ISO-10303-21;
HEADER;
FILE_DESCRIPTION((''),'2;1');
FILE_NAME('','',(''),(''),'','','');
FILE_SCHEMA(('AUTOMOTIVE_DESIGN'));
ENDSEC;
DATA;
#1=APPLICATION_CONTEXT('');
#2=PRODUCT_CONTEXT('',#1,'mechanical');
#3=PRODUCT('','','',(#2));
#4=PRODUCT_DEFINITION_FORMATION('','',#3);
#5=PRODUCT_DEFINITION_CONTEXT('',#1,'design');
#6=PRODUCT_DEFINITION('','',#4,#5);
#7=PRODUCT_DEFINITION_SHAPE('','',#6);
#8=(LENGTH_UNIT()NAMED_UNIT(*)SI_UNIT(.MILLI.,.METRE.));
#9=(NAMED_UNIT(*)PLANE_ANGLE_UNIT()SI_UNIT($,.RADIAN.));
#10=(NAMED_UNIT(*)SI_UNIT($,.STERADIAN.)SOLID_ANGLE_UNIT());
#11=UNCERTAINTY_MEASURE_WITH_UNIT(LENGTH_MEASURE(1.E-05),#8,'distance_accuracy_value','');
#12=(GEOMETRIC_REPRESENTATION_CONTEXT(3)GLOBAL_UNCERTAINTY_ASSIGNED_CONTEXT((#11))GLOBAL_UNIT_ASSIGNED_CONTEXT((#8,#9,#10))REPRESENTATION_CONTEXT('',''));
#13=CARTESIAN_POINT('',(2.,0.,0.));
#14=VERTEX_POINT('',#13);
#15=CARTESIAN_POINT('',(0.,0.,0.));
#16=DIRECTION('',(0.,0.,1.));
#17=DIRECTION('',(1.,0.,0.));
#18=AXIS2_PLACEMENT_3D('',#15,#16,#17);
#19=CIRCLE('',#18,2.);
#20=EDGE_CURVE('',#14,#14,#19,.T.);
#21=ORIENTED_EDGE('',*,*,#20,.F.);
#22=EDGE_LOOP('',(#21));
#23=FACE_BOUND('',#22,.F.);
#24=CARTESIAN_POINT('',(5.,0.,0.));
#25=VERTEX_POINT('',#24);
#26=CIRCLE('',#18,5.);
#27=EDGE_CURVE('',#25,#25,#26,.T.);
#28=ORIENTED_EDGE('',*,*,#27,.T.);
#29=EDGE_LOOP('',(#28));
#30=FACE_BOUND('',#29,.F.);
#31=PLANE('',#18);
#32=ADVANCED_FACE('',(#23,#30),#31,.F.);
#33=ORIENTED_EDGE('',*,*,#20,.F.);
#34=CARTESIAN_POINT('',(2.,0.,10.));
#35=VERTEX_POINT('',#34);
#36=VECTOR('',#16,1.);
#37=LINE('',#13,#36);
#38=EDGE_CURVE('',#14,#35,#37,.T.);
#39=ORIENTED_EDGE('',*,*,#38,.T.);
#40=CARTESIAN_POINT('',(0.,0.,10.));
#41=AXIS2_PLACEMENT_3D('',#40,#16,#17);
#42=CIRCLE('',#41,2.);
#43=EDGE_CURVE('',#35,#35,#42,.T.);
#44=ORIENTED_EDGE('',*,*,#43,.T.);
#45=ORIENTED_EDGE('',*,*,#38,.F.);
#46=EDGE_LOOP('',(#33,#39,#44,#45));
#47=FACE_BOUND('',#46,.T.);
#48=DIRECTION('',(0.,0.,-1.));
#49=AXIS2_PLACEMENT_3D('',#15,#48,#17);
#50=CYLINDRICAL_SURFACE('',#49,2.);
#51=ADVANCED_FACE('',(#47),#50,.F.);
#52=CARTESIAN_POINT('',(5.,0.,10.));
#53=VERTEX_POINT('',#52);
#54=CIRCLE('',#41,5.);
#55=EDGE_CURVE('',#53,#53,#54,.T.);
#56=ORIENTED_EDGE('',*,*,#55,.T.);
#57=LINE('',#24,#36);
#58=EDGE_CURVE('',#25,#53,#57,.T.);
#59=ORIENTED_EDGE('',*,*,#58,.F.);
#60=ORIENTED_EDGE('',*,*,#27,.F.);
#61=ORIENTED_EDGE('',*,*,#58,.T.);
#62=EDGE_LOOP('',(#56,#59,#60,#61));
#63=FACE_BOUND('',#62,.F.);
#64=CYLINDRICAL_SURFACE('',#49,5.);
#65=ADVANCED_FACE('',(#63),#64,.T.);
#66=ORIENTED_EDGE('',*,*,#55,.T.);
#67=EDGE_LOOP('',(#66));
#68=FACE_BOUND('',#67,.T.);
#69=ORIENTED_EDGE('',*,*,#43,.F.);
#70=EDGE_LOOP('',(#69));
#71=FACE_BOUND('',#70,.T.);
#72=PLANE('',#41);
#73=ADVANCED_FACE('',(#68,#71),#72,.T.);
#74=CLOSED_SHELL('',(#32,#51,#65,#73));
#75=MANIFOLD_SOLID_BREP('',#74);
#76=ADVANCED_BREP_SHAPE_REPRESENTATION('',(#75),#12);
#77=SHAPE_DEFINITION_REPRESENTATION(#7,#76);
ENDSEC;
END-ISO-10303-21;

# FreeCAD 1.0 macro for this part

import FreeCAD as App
import Part
import Sketcher
from FreeCAD import Vector
Q = App.Units.Quantity

doc = App.newDocument("Part")
body = doc.addObject("PartDesign::Body", "Body")

sketch1 = doc.addObject("Sketcher::SketchObject", "Sketch")
body.addObject(sketch1)
sketch1.AttachmentSupport = (doc.XY_Plane, [""])
sketch1.MapMode = "FlatFace"
sketch1.addGeometry([
    Part.Circle(Vector(0, 0, 0), Vector(0, 0, 1), 5),
    Part.Circle(Vector(0, 0, 0), Vector(0, 0, 1), 2),
], False)
sketch1.addConstraint([
    Sketcher.Constraint("Coincident", 0, 3, -1, 1),
    Sketcher.Constraint("Coincident", 1, 3, -1, 1),
    Sketcher.Constraint("Diameter", 0, Q("10 mm")),
    Sketcher.Constraint("Diameter", 1, Q("4 mm")),
])
pad1 = doc.addObject("PartDesign::Pad", "Pad")
body.addObject(pad1)
pad1.Profile = sketch1
pad1.Length = 10

doc.recompute()
